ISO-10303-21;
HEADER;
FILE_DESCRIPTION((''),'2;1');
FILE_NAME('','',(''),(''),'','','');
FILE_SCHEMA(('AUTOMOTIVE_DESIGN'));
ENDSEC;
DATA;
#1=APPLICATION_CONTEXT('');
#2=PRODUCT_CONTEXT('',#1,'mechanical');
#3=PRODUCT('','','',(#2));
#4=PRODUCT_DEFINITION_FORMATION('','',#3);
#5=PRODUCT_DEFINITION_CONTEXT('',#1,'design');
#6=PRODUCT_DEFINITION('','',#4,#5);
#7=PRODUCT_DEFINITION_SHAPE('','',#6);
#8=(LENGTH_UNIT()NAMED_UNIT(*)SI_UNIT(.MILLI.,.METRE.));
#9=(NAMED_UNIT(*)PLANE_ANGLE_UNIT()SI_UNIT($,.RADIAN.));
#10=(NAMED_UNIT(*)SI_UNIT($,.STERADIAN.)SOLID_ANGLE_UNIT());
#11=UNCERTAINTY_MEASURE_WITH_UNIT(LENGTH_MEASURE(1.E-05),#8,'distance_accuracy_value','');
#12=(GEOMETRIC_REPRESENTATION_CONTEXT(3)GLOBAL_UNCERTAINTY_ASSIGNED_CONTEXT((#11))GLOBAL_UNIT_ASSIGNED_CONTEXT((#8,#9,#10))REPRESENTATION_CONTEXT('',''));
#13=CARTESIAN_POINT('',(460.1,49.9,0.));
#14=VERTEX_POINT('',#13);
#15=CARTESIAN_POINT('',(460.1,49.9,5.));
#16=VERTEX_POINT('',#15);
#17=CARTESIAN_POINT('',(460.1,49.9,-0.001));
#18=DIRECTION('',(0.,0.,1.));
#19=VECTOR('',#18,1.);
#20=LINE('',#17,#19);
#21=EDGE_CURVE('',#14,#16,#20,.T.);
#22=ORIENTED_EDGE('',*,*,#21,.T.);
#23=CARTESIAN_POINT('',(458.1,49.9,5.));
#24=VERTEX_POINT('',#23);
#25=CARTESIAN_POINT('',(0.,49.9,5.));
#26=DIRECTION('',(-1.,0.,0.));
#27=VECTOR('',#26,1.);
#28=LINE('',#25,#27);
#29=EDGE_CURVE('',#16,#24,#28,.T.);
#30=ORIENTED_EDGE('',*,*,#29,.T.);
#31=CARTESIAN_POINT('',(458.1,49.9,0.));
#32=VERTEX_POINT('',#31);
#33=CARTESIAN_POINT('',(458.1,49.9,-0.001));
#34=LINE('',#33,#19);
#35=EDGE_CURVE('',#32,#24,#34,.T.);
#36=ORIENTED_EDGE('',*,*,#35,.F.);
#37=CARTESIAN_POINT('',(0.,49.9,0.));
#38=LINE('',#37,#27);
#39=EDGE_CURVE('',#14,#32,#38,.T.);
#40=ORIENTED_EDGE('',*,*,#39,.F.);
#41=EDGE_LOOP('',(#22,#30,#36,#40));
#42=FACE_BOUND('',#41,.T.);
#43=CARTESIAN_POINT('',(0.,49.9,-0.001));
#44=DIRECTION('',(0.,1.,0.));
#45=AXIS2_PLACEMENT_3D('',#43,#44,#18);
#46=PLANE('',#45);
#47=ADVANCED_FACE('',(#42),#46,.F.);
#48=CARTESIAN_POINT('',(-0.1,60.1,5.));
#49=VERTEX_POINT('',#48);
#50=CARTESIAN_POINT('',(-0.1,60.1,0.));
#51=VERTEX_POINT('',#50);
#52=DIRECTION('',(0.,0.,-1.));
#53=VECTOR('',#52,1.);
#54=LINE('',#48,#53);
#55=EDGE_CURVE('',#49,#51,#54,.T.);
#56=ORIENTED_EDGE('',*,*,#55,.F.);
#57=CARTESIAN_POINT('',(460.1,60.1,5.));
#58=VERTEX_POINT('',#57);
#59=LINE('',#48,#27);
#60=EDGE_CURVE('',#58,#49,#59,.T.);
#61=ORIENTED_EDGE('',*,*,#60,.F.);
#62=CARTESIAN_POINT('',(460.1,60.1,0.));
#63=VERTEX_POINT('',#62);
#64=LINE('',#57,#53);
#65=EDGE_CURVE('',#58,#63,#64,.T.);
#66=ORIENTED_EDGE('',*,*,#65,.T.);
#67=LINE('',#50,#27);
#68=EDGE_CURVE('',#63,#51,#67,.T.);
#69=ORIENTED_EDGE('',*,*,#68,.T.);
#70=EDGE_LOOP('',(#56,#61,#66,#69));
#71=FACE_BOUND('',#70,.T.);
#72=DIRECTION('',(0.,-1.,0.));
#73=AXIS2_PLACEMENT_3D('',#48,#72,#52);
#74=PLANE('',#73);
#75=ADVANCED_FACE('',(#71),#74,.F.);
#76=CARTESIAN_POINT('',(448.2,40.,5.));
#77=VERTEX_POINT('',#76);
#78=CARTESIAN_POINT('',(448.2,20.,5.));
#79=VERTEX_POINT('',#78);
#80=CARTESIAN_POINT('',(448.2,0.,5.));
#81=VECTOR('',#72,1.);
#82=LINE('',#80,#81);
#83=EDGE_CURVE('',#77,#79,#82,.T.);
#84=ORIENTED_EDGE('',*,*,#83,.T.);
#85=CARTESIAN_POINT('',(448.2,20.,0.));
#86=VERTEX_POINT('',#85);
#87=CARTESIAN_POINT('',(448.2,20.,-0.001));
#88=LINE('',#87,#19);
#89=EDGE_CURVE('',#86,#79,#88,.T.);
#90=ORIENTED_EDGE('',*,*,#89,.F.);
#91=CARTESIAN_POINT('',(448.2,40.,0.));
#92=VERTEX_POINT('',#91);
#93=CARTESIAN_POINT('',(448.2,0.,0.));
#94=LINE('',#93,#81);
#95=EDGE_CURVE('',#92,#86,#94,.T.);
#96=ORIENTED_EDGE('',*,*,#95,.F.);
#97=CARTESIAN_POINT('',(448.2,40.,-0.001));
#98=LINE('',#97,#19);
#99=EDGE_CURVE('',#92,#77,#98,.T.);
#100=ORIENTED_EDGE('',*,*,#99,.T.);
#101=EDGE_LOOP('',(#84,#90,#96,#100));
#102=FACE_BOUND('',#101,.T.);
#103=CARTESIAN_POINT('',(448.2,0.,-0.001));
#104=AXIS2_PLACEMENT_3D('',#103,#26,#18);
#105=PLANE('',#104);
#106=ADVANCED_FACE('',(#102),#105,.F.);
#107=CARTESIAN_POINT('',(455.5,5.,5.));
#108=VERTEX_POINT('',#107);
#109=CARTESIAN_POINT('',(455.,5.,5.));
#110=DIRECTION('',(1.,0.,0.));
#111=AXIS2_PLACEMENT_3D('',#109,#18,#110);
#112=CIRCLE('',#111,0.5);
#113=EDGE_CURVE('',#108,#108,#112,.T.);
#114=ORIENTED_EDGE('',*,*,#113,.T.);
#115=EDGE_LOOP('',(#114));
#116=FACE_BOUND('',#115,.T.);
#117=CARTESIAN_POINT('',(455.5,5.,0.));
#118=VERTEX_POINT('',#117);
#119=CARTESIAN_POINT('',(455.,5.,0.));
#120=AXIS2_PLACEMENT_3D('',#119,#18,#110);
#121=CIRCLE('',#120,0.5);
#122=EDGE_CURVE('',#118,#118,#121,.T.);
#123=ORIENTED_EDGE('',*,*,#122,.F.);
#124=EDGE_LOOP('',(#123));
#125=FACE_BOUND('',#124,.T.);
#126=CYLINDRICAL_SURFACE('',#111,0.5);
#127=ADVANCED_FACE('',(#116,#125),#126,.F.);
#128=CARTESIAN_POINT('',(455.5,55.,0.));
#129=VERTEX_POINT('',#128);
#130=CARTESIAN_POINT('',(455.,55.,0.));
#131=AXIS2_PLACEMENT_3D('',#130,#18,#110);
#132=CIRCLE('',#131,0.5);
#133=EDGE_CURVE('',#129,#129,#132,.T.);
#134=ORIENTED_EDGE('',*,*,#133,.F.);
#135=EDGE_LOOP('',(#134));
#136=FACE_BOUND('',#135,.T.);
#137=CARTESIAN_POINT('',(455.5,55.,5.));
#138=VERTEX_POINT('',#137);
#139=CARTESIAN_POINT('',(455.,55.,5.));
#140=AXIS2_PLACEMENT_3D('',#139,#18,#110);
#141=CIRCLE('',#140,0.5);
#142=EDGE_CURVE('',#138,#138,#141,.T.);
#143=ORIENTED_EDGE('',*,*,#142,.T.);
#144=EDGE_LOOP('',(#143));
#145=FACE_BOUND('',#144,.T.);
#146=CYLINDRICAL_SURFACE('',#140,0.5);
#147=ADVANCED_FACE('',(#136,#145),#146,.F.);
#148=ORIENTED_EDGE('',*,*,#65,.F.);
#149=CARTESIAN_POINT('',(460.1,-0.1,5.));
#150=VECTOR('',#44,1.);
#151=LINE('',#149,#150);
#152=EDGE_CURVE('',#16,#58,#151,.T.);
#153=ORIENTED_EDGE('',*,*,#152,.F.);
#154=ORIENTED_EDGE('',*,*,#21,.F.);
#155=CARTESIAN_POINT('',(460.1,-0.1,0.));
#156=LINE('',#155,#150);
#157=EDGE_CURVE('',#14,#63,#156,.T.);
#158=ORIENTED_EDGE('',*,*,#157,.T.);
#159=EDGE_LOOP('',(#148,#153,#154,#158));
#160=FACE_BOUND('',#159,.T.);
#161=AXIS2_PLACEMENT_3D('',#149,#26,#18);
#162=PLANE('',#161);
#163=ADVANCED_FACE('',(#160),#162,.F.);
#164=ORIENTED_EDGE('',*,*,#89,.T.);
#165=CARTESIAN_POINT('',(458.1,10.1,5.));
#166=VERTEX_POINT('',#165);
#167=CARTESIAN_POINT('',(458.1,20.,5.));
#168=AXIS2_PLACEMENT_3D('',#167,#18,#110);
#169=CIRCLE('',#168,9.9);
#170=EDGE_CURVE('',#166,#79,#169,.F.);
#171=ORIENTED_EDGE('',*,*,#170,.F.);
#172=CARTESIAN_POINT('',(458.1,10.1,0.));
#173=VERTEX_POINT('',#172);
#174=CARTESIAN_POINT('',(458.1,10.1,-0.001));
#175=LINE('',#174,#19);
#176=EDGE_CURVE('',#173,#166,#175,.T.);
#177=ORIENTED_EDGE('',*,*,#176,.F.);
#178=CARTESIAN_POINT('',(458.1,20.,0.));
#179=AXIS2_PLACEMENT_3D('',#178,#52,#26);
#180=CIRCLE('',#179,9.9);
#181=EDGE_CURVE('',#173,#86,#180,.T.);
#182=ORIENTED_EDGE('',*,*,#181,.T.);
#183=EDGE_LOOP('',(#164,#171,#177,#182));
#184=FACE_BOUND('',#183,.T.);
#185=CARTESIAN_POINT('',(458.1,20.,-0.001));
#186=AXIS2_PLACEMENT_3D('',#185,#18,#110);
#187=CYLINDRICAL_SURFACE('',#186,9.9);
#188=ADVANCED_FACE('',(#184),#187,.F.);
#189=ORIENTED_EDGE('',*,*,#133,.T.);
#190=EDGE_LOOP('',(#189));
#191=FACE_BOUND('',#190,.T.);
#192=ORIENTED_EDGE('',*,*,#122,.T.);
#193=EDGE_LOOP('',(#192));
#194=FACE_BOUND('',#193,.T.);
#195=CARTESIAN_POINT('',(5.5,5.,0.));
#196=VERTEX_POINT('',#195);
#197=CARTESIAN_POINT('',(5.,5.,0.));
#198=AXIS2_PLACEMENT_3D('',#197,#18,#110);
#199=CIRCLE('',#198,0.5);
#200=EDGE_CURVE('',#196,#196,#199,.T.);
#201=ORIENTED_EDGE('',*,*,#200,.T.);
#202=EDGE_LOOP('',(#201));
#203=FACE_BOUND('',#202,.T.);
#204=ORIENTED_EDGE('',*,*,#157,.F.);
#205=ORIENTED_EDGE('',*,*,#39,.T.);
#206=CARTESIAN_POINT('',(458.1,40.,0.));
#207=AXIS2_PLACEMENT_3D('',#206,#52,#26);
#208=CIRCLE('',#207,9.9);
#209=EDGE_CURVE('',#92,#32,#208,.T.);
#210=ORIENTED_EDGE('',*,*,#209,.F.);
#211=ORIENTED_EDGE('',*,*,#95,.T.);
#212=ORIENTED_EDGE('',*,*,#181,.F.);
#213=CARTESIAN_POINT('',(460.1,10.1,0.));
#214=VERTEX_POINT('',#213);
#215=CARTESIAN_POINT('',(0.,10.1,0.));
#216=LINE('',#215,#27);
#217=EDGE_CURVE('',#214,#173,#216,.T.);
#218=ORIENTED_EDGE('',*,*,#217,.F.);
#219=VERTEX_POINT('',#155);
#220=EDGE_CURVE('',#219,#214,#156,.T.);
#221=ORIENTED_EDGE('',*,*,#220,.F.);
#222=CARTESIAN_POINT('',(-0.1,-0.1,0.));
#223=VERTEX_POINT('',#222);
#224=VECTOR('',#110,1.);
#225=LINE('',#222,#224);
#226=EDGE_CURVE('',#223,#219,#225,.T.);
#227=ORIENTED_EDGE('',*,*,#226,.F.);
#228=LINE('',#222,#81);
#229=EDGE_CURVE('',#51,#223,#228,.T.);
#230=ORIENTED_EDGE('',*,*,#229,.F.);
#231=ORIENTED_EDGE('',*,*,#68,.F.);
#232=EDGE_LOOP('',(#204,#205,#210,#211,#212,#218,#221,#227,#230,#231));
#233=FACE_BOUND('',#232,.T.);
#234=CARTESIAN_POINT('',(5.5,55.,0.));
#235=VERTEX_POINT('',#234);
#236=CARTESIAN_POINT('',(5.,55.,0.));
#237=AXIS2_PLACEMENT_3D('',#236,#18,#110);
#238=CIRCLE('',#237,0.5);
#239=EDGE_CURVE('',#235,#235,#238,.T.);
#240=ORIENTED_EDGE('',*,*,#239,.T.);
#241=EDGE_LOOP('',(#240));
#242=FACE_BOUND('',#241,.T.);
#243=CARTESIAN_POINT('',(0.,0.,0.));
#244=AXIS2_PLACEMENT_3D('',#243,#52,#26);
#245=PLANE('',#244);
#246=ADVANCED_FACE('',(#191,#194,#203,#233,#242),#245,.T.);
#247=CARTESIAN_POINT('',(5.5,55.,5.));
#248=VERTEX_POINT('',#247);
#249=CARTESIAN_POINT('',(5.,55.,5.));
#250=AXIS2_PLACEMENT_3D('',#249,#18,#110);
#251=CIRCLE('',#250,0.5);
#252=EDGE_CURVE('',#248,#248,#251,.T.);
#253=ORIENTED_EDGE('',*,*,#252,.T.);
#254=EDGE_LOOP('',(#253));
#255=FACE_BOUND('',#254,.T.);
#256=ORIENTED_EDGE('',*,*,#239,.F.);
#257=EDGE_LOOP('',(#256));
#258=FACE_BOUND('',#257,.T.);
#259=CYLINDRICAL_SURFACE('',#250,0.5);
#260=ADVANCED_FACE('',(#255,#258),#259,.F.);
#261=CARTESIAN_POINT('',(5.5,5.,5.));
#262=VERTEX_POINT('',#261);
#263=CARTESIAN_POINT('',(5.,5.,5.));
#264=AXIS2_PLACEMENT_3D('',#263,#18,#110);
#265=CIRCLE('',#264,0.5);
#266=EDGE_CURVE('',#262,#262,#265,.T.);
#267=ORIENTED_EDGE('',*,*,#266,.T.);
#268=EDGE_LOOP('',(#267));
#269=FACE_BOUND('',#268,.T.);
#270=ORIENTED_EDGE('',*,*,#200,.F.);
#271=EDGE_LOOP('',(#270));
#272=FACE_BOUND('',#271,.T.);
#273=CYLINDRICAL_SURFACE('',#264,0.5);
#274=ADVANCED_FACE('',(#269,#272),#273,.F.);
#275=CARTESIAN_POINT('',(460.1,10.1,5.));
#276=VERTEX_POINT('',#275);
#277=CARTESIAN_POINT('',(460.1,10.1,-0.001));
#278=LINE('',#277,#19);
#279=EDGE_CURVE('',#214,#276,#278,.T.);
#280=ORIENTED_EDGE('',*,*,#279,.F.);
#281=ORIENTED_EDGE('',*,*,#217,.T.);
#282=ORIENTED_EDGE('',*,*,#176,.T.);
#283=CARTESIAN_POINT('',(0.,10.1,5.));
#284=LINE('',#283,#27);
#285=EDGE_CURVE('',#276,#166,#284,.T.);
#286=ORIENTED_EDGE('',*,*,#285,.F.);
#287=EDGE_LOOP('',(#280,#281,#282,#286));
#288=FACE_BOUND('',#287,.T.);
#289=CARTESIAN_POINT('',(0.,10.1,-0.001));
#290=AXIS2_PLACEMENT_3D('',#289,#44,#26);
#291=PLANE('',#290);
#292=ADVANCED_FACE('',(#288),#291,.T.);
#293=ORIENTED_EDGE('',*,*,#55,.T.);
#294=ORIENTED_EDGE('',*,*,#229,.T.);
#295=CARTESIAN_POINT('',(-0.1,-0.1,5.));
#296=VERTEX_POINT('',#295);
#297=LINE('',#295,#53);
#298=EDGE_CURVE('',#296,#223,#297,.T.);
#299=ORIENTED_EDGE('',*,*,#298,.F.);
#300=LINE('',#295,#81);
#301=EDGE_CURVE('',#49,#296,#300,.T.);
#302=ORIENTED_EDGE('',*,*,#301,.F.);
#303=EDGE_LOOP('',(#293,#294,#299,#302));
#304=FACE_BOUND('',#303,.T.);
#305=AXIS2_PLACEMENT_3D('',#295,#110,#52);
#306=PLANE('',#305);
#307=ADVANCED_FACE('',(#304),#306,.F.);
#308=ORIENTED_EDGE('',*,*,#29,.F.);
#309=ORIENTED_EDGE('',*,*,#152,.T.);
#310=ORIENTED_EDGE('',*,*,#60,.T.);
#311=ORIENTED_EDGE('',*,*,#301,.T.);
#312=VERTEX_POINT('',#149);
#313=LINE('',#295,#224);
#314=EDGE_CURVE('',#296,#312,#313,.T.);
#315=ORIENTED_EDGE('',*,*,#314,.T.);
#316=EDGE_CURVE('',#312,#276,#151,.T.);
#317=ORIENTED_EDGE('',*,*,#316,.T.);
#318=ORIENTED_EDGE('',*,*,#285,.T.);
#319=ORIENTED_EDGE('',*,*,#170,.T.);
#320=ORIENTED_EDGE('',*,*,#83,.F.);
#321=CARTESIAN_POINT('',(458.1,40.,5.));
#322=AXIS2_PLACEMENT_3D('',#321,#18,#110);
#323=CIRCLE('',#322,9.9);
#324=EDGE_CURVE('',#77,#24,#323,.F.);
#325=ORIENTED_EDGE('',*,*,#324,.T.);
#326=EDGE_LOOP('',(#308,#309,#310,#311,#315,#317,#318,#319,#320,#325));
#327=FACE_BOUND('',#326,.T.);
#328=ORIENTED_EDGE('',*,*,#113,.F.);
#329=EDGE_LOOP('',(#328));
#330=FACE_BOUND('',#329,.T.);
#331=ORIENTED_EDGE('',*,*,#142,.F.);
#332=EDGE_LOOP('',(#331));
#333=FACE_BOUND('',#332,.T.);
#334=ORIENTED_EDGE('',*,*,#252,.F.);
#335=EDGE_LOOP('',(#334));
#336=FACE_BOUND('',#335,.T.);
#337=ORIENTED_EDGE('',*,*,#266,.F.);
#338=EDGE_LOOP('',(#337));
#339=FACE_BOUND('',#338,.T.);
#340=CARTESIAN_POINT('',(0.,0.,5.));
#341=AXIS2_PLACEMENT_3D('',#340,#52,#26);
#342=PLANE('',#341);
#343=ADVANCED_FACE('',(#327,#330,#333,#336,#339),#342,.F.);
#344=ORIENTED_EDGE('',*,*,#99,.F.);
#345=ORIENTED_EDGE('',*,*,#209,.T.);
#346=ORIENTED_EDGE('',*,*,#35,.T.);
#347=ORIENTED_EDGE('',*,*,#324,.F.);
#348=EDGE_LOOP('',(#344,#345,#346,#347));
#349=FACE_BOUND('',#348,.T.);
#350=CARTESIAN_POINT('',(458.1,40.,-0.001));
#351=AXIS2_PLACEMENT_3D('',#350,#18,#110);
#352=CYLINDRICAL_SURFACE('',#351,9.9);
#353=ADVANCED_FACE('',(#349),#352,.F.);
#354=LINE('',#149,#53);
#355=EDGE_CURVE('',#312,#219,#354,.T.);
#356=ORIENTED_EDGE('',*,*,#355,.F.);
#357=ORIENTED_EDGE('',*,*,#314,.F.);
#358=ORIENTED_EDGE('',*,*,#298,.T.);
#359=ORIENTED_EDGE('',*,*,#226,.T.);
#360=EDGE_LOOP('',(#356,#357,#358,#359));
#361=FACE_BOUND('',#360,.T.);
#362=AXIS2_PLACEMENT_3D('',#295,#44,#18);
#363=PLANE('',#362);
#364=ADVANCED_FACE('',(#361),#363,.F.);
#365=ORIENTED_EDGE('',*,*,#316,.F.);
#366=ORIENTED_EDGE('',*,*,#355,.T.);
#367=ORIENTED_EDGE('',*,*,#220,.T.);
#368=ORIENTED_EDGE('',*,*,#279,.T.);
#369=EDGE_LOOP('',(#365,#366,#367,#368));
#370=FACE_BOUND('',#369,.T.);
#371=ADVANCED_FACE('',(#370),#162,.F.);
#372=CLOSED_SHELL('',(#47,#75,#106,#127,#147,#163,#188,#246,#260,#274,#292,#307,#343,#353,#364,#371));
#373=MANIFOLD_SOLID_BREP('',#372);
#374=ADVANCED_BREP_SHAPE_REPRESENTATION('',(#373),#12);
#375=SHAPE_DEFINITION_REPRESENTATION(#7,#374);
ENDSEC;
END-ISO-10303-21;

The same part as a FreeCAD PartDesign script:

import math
import FreeCAD as App
import Part
import Sketcher


def add_polygon(sketch, points):
    """Adds a closed chain of lines whose ends are joined by coincident constraints."""
    first, n = sketch.GeometryCount, len(points)
    for a, b in zip(points, points[1:] + points[:1]):
        sketch.addGeometry(Part.LineSegment(App.Vector(*a, 0), App.Vector(*b, 0)), False)
    for i in range(n):
        sketch.addConstraint(Sketcher.Constraint("Coincident", first + i, 2, first + (i + 1) % n, 1))

doc = App.newDocument("Part")
params = doc.addObject("Spreadsheet::Sheet", "Params")
for row, (alias, value) in enumerate([
    ("sketch1_width", "460.2 mm"),
    ("sketch1_height", "60.2 mm"),
    ("pad1_length", "5 mm"),
    ("sketch2_diameter", "1 mm"),
    ("hole_diameter", "1 mm"),
    ("sketch3_radius", "9.9 mm"),
    ("sketch3_width", "2 mm"),
    ("sketch3_height", "20 mm"),
], start=1):
    params.set(f"A{row}", alias)
    params.set(f"B{row}", "=" + value)
    params.setAlias(f"B{row}", alias)

body = doc.addObject("PartDesign::Body", "Body")

sketch1 = body.newObject("Sketcher::SketchObject", "Sketch")
sketch1.AttachmentSupport = (doc.getObject("XY_Plane"), [""])
sketch1.MapMode = "FlatFace"
add_polygon(sketch1, [(0, 60), (0, 0), (460, 0), (460, 60)])
sketch1.addConstraint([
    Sketcher.Constraint("Vertical", 0),
    Sketcher.Constraint("Horizontal", 1),
    Sketcher.Constraint("Vertical", 2),
    Sketcher.Constraint("Horizontal", 3),
    Sketcher.Constraint("DistanceX", 1, 1, 1, 2, 460.2),
    Sketcher.Constraint("DistanceY", 0, 2, 0, 1, 60.2),
    Sketcher.Constraint("DistanceX", 0, 2, -1, 1, 0.1),
    Sketcher.Constraint("DistanceY", 0, 2, -1, 1, 0.1),
])
sketch1.setExpression("Constraints[8]", "Params.sketch1_width")
sketch1.setExpression("Constraints[9]", "Params.sketch1_height")
pad1 = body.newObject("PartDesign::Pad", "Pad")
pad1.Profile = sketch1
pad1.setExpression("Length", "Params.pad1_length")

sketch2 = body.newObject("Sketcher::SketchObject", "Sketch001")
sketch2.AttachmentSupport = (doc.getObject("XY_Plane"), [""])
sketch2.MapMode = "FlatFace"
sketch2.AttachmentOffset = App.Placement(App.Vector(0, 0, 5), App.Rotation())
sketch2.addGeometry([
    Part.Circle(App.Vector(5, 55, 0), App.Vector(0, 0, 1), 0.5),
    Part.Circle(App.Vector(5, 5, 0), App.Vector(0, 0, 1), 0.5),
    Part.Circle(App.Vector(455, 5, 0), App.Vector(0, 0, 1), 0.5),
    Part.Circle(App.Vector(455, 55, 0), App.Vector(0, 0, 1), 0.5),
], False)
sketch2.addConstraint([
    Sketcher.Constraint("Equal", 0, 1),
    Sketcher.Constraint("Equal", 1, 2),
    Sketcher.Constraint("Equal", 2, 3),
    Sketcher.Constraint("Horizontal", 1, 3, 2, 3),
    Sketcher.Constraint("Horizontal", 0, 3, 3, 3),
    Sketcher.Constraint("Vertical", 0, 3, 1, 3),
    Sketcher.Constraint("Vertical", 2, 3, 3, 3),
    Sketcher.Constraint("Diameter", 0, 1.0),
    Sketcher.Constraint("DistanceX", -1, 1, 0, 3, 5.0),
    Sketcher.Constraint("DistanceY", -1, 1, 0, 3, 55.0),
    Sketcher.Constraint("DistanceY", -1, 1, 1, 3, 5.0),
    Sketcher.Constraint("DistanceX", -1, 1, 2, 3, 455.0),
])
sketch2.setExpression("Constraints[7]", "Params.sketch2_diameter")
doc.recompute()
hole = body.newObject("PartDesign::Hole", "Hole")
hole.Profile = sketch2
hole.ThreadType = "None"
hole.setExpression("Diameter", "Params.hole_diameter")
hole.DepthType = "ThroughAll"

sketch3 = body.newObject("Sketcher::SketchObject", "Sketch002")
sketch3.AttachmentSupport = (doc.getObject("XY_Plane"), [""])
sketch3.MapMode = "FlatFace"
sketch3.AttachmentOffset = App.Placement(App.Vector(0, 0, 5), App.Rotation())
sketch3.addGeometry([
    Part.LineSegment(App.Vector(460.1, 10.1, 0), App.Vector(460.1, 49.9, 0)),
    Part.LineSegment(App.Vector(460.1, 49.9, 0), App.Vector(458.1, 49.9, 0)),
    Part.ArcOfCircle(Part.Circle(App.Vector(458.1, 40, 0), App.Vector(0, 0, 1), 9.9), math.radians(90), math.radians(180)),
    Part.LineSegment(App.Vector(448.2, 40, 0), App.Vector(448.2, 20, 0)),
    Part.ArcOfCircle(Part.Circle(App.Vector(458.1, 20, 0), App.Vector(0, 0, 1), 9.9), math.radians(180), math.radians(270)),
    Part.LineSegment(App.Vector(458.1, 10.1, 0), App.Vector(460.1, 10.1, 0)),
], False)
sketch3.addConstraint([
    Sketcher.Constraint("Coincident", 0, 2, 1, 1),
    Sketcher.Constraint("Tangent", 1, 2, 2, 1),
    Sketcher.Constraint("Tangent", 2, 2, 3, 1),
    Sketcher.Constraint("Tangent", 3, 2, 4, 1),
    Sketcher.Constraint("Tangent", 4, 2, 5, 1),
    Sketcher.Constraint("Coincident", 5, 2, 0, 1),
    Sketcher.Constraint("Vertical", 0),
    Sketcher.Constraint("Horizontal", 1),
    Sketcher.Constraint("Vertical", 3),
    Sketcher.Constraint("Horizontal", 5),
    Sketcher.Constraint("Equal", 2, 4),
    Sketcher.Constraint("Radius", 2, 9.9),
    Sketcher.Constraint("DistanceX", 1, 2, 1, 1, 2.0),
    Sketcher.Constraint("DistanceY", 3, 2, 3, 1, 20.0),
    Sketcher.Constraint("DistanceY", -1, 1, 2, 3, 40.0),
    Sketcher.Constraint("DistanceX", -1, 1, 2, 3, 458.1),
])
sketch3.setExpression("Constraints[11]", "Params.sketch3_radius")
sketch3.setExpression("Constraints[12]", "Params.sketch3_width")
sketch3.setExpression("Constraints[13]", "Params.sketch3_height")
pocket1 = body.newObject("PartDesign::Pocket", "Pocket")
pocket1.Profile = sketch3
pocket1.Type = "UpToFirst"

doc.recompute()
